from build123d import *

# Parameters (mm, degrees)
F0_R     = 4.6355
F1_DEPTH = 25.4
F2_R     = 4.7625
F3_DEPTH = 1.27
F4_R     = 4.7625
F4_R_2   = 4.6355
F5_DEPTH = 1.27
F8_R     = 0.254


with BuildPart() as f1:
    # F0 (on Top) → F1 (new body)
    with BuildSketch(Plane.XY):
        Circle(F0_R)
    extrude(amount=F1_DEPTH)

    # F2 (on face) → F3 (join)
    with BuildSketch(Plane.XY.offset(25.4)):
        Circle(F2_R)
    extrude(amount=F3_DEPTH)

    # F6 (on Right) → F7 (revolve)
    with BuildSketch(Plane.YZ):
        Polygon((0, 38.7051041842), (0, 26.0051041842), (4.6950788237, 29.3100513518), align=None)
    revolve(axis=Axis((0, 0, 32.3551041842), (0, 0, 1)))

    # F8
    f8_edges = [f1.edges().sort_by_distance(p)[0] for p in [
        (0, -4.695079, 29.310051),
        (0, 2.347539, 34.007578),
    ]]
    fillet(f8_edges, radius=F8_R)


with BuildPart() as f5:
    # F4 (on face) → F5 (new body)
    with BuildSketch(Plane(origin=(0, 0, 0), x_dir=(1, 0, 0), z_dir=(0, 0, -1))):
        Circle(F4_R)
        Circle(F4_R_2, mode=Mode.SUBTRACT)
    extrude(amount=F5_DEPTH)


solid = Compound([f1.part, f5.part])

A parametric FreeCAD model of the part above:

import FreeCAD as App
import Part
import Sketcher

V = App.Vector
Q = App.Units.Quantity


def edges_at(feature, points):
    """Names of the edges that pass closest to the given points."""
    edges = feature.Shape.Edges
    near = lambda p: min(range(len(edges)), key=lambda i: edges[i].distToShape(Part.Vertex(*p))[0])
    return sorted({f"Edge{near(p) + 1}" for p in points})

doc = App.newDocument("Part")
params = doc.addObject("Spreadsheet::Sheet", "Params")
for row, (alias, value) in enumerate([
    ("sketch1_diameter", "0.365 in"),
    ("pad1_length", "1 in"),
    ("sketch2_diameter", "0.375 in"),
    ("pad2_length", "0.05 in"),
    ("sketch3_height", "0.5 in"),
    ("revolution_angle", "360 deg"),
    ("fillet_radius", "0.01 in"),
    ("sketch4_diameter", "0.375 in"),
    ("sketch4_diameter2", "0.365 in"),
    ("pad3_length", "0.05 in"),
], start=1):
    params.set(f"A{row}", alias)
    params.set(f"B{row}", "=" + value)
    params.setAlias(f"B{row}", alias)

body = doc.addObject("PartDesign::Body", "Body")

sketch1 = body.newObject("Sketcher::SketchObject", "Sketch")
sketch1.AttachmentSupport = (doc.getObject("XY_Plane"), [""])
sketch1.MapMode = "FlatFace"
sketch1.addGeometry(Part.Circle(V(0, 0, 0), V(0, 0, 1), 4.6), False)
sketch1.addConstraint([
    Sketcher.Constraint("Coincident", 0, 3, -1, 1),
    Sketcher.Constraint("Diameter", 0, Q("0.365 in")),
])
sketch1.setExpression("Constraints[1]", "Params.sketch1_diameter")
pad1 = body.newObject("PartDesign::Pad", "Pad")
pad1.Profile = sketch1
pad1.setExpression("Length", "Params.pad1_length")

sketch2 = body.newObject("Sketcher::SketchObject", "Sketch001")
sketch2.AttachmentSupport = (doc.getObject("XY_Plane"), [""])
sketch2.MapMode = "FlatFace"
sketch2.AttachmentOffset = App.Placement(V(0, 0, 1 * 25.4), App.Rotation())
sketch2.addGeometry(Part.Circle(V(0, 0, 0), V(0, 0, 1), 4.8), False)
sketch2.addConstraint([
    Sketcher.Constraint("Coincident", 0, 3, -1, 1),
    Sketcher.Constraint("Diameter", 0, Q("0.375 in")),
])
sketch2.setExpression("Constraints[1]", "Params.sketch2_diameter")
pad2 = body.newObject("PartDesign::Pad", "Pad001")
pad2.Profile = sketch2
pad2.setExpression("Length", "Params.pad2_length")

sketch3 = body.newObject("Sketcher::SketchObject", "Sketch002")
sketch3.AttachmentSupport = (doc.getObject("YZ_Plane"), [""])
sketch3.MapMode = "FlatFace"
sketch3.addGeometry([
    Part.LineSegment(V(0, 39, 0), V(0, 26, 0)),
    Part.LineSegment(V(0, 26, 0), V(5, 29, 0)),
    Part.LineSegment(V(5, 29, 0), V(0, 39, 0)),
], False)
sketch3.addConstraint([
    Sketcher.Constraint("Coincident", 0, 2, 1, 1),
    Sketcher.Constraint("Coincident", 1, 2, 2, 1),
    Sketcher.Constraint("Coincident", 2, 2, 0, 1),
    Sketcher.Constraint("Vertical", 0),
    Sketcher.Constraint("PointOnObject", 0, 2, -2),
    Sketcher.Constraint("DistanceY", 0, 2, 0, 1, Q("0.5 in")),
    Sketcher.Constraint("Distance", 1, Q("5.741641 mm")),
    Sketcher.Constraint("DistanceX", -1, 1, 1, 2, Q("4.695079 mm")),
    Sketcher.Constraint("DistanceY", -1, 1, 1, 2, Q("29.310051 mm")),
])
sketch3.setExpression("Constraints[5]", "Params.sketch3_height")
revolution = body.newObject("PartDesign::Revolution", "Revolution")
revolution.Profile = sketch3
revolution.ReferenceAxis = (sketch3, ["V_Axis"])
revolution.setExpression("Angle", "Params.revolution_angle")
doc.recompute()

fillet = body.newObject("PartDesign::Fillet", "Fillet")
fillet.Base = (revolution, edges_at(revolution, [(0, -4.695, 29.31), (0, 2.348, 34.008)]))
fillet.setExpression("Radius", "Params.fillet_radius")
body2 = doc.addObject("PartDesign::Body", "Body001")

sketch4 = body2.newObject("Sketcher::SketchObject", "Sketch003")
sketch4.AttachmentSupport = (doc.getObject("XY_Plane001"), [""])
sketch4.MapMode = "FlatFace"
sketch4.addGeometry([
    Part.Circle(V(0, 0, 0), V(0, 0, 1), 4.8),
    Part.Circle(V(0, 0, 0), V(0, 0, 1), 4.6),
], False)
sketch4.addConstraint([
    Sketcher.Constraint("Coincident", 0, 3, -1, 1),
    Sketcher.Constraint("Coincident", 1, 3, -1, 1),
    Sketcher.Constraint("Diameter", 0, Q("0.375 in")),
    Sketcher.Constraint("Diameter", 1, Q("0.365 in")),
])
sketch4.setExpression("Constraints[2]", "Params.sketch4_diameter")
sketch4.setExpression("Constraints[3]", "Params.sketch4_diameter2")
pad3 = body2.newObject("PartDesign::Pad", "Pad002")
pad3.Profile = sketch4
pad3.setExpression("Length", "Params.pad3_length")
pad3.Reversed = True

doc.recompute()
